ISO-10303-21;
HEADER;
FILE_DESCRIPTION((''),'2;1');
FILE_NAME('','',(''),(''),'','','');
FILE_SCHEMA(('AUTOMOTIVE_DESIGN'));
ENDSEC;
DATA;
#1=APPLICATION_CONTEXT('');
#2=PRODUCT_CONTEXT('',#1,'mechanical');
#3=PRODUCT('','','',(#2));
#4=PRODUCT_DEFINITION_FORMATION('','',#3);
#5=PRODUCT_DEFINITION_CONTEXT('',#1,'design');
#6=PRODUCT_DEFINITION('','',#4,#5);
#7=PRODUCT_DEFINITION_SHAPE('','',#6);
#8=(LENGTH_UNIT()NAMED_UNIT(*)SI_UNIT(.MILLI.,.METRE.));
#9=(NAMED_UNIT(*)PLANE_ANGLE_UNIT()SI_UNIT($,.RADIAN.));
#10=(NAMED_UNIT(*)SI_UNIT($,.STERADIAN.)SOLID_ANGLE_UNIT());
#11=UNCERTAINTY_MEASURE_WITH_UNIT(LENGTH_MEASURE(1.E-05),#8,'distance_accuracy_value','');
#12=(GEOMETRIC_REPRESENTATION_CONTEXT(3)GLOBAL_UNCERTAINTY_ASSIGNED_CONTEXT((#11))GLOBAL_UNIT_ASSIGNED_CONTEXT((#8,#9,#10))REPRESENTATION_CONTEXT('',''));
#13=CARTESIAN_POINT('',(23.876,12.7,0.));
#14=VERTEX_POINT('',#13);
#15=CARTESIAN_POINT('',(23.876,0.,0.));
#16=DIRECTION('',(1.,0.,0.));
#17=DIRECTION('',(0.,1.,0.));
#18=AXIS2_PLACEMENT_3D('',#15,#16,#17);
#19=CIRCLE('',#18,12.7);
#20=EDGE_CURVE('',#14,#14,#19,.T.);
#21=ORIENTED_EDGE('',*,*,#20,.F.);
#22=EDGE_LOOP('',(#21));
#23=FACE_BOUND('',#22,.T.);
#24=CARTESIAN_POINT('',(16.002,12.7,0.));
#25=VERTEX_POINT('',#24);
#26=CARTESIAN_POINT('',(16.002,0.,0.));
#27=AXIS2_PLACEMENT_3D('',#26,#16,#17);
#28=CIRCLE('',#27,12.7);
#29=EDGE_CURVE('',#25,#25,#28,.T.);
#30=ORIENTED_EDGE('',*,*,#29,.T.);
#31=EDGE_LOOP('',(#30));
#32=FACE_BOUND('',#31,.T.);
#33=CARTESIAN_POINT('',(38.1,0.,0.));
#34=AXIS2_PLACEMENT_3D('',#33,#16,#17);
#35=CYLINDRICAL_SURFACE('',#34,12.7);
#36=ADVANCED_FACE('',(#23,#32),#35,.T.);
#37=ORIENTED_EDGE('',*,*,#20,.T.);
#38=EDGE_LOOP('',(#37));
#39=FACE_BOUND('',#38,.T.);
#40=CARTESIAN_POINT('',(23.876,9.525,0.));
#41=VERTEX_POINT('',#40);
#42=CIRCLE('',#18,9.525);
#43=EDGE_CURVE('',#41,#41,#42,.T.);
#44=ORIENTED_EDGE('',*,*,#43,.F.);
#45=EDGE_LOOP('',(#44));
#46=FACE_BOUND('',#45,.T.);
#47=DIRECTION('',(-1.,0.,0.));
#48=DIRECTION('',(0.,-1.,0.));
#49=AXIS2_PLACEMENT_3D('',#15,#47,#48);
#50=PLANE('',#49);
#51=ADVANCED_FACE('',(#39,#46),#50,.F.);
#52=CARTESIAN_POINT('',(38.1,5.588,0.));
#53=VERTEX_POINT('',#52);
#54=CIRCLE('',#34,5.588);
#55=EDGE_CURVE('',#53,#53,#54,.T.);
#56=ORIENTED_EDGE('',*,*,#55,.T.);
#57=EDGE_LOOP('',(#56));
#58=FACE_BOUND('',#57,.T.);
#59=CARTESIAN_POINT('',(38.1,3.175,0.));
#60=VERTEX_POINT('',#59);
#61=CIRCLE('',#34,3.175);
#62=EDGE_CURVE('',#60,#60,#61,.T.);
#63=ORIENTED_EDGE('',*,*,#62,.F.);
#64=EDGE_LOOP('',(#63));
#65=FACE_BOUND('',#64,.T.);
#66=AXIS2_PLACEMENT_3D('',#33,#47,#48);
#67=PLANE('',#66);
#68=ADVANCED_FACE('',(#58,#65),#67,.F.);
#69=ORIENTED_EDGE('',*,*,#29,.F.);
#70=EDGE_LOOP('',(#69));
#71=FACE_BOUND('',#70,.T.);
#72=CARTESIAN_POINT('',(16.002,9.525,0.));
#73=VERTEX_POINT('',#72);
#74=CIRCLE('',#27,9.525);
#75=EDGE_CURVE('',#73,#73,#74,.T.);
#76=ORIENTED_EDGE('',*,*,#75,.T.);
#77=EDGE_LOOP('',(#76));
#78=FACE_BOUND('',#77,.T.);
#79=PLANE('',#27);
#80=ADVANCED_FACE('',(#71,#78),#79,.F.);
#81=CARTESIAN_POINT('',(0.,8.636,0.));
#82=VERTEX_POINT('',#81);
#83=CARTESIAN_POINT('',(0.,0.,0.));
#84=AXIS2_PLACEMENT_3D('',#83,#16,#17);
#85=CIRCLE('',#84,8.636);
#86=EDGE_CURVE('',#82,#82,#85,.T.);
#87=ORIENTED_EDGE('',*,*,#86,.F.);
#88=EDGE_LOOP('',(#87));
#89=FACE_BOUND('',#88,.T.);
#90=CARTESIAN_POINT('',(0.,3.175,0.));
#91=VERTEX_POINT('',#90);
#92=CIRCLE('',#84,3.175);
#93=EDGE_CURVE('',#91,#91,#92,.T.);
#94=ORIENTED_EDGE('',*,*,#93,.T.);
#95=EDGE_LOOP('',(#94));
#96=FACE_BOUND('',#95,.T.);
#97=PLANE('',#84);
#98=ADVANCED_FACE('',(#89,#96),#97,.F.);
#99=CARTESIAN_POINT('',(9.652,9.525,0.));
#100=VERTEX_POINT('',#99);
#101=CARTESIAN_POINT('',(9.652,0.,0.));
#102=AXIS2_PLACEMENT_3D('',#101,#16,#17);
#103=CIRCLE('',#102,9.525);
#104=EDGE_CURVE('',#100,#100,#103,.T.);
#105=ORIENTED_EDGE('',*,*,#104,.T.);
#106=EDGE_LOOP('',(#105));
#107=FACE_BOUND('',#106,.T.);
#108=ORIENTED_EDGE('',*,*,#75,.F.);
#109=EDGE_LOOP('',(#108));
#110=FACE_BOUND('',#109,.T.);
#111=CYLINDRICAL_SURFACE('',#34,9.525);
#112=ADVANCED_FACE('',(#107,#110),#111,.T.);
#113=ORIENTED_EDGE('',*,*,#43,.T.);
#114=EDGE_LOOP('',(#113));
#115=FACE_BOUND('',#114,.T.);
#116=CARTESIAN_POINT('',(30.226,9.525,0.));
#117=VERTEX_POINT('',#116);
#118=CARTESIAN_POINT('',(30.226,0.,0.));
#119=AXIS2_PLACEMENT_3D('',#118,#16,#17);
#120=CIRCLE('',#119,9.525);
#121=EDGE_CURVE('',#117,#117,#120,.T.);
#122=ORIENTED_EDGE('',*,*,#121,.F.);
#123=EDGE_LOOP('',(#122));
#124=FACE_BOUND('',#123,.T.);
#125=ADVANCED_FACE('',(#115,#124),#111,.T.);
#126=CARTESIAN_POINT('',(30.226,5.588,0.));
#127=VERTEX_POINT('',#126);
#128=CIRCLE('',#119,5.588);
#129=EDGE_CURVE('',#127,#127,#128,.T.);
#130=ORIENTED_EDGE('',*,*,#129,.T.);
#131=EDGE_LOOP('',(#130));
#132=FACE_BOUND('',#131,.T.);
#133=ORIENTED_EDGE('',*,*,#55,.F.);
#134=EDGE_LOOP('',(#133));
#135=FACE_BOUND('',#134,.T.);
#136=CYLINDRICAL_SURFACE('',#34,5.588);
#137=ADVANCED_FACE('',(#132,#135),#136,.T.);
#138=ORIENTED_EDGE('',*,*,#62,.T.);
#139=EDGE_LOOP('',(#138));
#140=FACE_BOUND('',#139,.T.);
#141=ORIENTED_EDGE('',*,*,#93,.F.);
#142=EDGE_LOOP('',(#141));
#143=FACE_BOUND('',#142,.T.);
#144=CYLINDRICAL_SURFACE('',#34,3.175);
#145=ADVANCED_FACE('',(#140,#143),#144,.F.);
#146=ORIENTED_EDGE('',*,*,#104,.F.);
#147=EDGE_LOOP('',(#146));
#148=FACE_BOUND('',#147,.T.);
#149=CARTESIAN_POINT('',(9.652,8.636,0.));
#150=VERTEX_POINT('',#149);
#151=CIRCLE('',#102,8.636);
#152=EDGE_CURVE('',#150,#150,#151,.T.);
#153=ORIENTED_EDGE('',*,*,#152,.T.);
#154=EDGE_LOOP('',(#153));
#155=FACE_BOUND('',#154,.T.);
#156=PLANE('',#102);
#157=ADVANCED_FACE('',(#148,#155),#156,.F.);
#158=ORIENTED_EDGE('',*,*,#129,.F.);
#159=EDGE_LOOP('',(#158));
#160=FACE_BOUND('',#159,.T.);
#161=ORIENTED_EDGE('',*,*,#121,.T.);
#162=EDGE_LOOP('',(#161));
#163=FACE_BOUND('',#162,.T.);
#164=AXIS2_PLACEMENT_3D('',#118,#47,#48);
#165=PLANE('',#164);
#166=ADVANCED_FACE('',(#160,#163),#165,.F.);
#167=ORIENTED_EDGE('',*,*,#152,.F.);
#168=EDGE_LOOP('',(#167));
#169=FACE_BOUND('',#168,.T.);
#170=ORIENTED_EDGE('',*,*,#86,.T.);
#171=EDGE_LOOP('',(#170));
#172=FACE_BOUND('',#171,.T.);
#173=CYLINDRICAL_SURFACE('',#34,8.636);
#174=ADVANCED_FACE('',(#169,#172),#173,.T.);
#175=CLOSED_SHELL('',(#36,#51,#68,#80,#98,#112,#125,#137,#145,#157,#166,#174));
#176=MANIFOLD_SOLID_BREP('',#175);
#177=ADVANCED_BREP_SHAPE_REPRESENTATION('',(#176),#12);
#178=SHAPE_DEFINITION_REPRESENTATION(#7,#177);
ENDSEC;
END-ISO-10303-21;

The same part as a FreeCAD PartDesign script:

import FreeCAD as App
import Part
import Sketcher

V = App.Vector
Q = App.Units.Quantity

doc = App.newDocument("Part")
body = doc.addObject("PartDesign::Body", "Body")

# Sketch on XY plane
sketch1 = body.newObject("Sketcher::SketchObject", "Sketch")
sketch1.AttachmentSupport = (doc.getObject("XY_Plane"), [""])
sketch1.MapMode = "FlatFace"
sketch1.addGeometry([
    Part.LineSegment(V(0, 8.6, 0), V(0, 3.2, 0)),  # 0
    Part.LineSegment(V(0, 3.2, 0), V(38.1, 3.2, 0)),  # 1
    Part.LineSegment(V(38.1, 3.2, 0), V(38.1, 5.6, 0)),  # 2
    Part.LineSegment(V(38.1, 5.6, 0), V(30.2, 5.6, 0)),  # 3
    Part.LineSegment(V(30.2, 5.6, 0), V(30.2, 9.5, 0)),  # 4
    Part.LineSegment(V(30.2, 9.5, 0), V(23.9, 9.5, 0)),  # 5
    Part.LineSegment(V(23.9, 9.5, 0), V(23.9, 12.7, 0)),  # 6
    Part.LineSegment(V(23.9, 12.7, 0), V(16, 12.7, 0)),  # 7
    Part.LineSegment(V(16, 12.7, 0), V(16, 9.5, 0)),  # 8
    Part.LineSegment(V(16, 9.5, 0), V(9.7, 9.5, 0)),  # 9
    Part.LineSegment(V(9.7, 9.5, 0), V(9.7, 8.6, 0)),  # 10
    Part.LineSegment(V(9.7, 8.6, 0), V(0, 8.6, 0)),  # 11
], False)
sketch1.addConstraint([
    Sketcher.Constraint("Coincident", 0, 2, 1, 1),
    Sketcher.Constraint("Coincident", 1, 2, 2, 1),
    Sketcher.Constraint("Coincident", 2, 2, 3, 1),
    Sketcher.Constraint("Coincident", 3, 2, 4, 1),
    Sketcher.Constraint("Coincident", 4, 2, 5, 1),
    Sketcher.Constraint("Coincident", 5, 2, 6, 1),
    Sketcher.Constraint("Coincident", 6, 2, 7, 1),
    Sketcher.Constraint("Coincident", 7, 2, 8, 1),
    Sketcher.Constraint("Coincident", 8, 2, 9, 1),
    Sketcher.Constraint("Coincident", 9, 2, 10, 1),
    Sketcher.Constraint("Coincident", 10, 2, 11, 1),
    Sketcher.Constraint("Coincident", 11, 2, 0, 1),
    Sketcher.Constraint("Vertical", 0),
    Sketcher.Constraint("Horizontal", 1),
    Sketcher.Constraint("Vertical", 2),
    Sketcher.Constraint("Horizontal", 3),
    Sketcher.Constraint("Vertical", 4),
    Sketcher.Constraint("Horizontal", 5),
    Sketcher.Constraint("Vertical", 6),
    Sketcher.Constraint("Horizontal", 7),
    Sketcher.Constraint("Vertical", 8),
    Sketcher.Constraint("Horizontal", 9),
    Sketcher.Constraint("Vertical", 10),
    Sketcher.Constraint("Horizontal", 11),
    Sketcher.Constraint("PointOnObject", 0, 2, -2),
    Sketcher.Constraint("Horizontal", 5, 2, 8, 2),
    Sketcher.Constraint("Equal", 3, 7),
    Sketcher.Constraint("Equal", 5, 9),
    Sketcher.Constraint("DistanceX", 1, 1, 1, 2, Q("1.5 in")),
    Sketcher.Constraint("DistanceX", 3, 2, 3, 1, Q("0.31 in")),
    Sketcher.Constraint("DistanceX", 5, 2, 5, 1, Q("0.25 in")),
    Sketcher.Constraint("DistanceY", -1, 1, 6, 2, Q("0.5 in")),
    Sketcher.Constraint("DistanceY", 0, 2, 0, 1, Q("0.215 in")),
    Sketcher.Constraint("DistanceY", 2, 1, 2, 2, Q("0.095 in")),
    Sketcher.Constraint("DistanceY", 4, 1, 4, 2, Q("0.155 in")),
    Sketcher.Constraint("DistanceY", 6, 1, 6, 2, Q("0.125 in")),
])
revolution = body.newObject("PartDesign::Revolution", "Revolution")
revolution.Profile = sketch1
revolution.ReferenceAxis = (sketch1, ["H_Axis"])
revolution.Angle = 360

doc.recompute()
